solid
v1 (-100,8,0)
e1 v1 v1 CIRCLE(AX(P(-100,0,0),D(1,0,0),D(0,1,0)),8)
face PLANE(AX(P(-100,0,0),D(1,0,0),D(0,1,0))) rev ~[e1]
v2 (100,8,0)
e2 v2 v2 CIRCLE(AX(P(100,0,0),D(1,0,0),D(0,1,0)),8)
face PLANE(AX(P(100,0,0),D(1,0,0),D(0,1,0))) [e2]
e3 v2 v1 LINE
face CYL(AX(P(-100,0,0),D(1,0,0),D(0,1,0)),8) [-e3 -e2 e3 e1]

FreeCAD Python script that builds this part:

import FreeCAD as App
import Part
import Sketcher
from FreeCAD import Vector

doc = App.newDocument("Part")
body = doc.addObject("PartDesign::Body", "Body")

# Sketch on XY plane
sketch1 = body.newObject("Sketcher::SketchObject", "Sketch")
sketch1.AttachmentSupport = (doc.getObject("XY_Plane"), [""])
sketch1.MapMode = "FlatFace"
sketch1.addGeometry([
    Part.LineSegment(Vector(100, 0, 0), Vector(100, 8, 0)),
    Part.LineSegment(Vector(100, 8, 0), Vector(-100, 8, 0)),
    Part.LineSegment(Vector(-100, 8, 0), Vector(-100, 0, 0)),
    Part.LineSegment(Vector(-100, 0, 0), Vector(100, 0, 0)),
], False)
sketch1.addConstraint([
    Sketcher.Constraint("Coincident", 0, 2, 1, 1),
    Sketcher.Constraint("Coincident", 1, 2, 2, 1),
    Sketcher.Constraint("Coincident", 2, 2, 3, 1),
    Sketcher.Constraint("Coincident", 3, 2, 0, 1),
    Sketcher.Constraint("Vertical", 0),
    Sketcher.Constraint("Horizontal", 1),
    Sketcher.Constraint("Vertical", 2),
    Sketcher.Constraint("Horizontal", 3),
    Sketcher.Constraint("Symmetric", 2, 2, 3, 2, -1, 1),
    Sketcher.Constraint("DistanceX", 1, 2, 1, 1, 200.0),
    Sketcher.Constraint("DistanceY", 0, 1, 0, 2, 8.0),
])
revolution = body.newObject("PartDesign::Revolution", "Revolution")
revolution.Profile = sketch1
revolution.ReferenceAxis = (sketch1, ["H_Axis"])
revolution.Angle = 360

doc.recompute()
